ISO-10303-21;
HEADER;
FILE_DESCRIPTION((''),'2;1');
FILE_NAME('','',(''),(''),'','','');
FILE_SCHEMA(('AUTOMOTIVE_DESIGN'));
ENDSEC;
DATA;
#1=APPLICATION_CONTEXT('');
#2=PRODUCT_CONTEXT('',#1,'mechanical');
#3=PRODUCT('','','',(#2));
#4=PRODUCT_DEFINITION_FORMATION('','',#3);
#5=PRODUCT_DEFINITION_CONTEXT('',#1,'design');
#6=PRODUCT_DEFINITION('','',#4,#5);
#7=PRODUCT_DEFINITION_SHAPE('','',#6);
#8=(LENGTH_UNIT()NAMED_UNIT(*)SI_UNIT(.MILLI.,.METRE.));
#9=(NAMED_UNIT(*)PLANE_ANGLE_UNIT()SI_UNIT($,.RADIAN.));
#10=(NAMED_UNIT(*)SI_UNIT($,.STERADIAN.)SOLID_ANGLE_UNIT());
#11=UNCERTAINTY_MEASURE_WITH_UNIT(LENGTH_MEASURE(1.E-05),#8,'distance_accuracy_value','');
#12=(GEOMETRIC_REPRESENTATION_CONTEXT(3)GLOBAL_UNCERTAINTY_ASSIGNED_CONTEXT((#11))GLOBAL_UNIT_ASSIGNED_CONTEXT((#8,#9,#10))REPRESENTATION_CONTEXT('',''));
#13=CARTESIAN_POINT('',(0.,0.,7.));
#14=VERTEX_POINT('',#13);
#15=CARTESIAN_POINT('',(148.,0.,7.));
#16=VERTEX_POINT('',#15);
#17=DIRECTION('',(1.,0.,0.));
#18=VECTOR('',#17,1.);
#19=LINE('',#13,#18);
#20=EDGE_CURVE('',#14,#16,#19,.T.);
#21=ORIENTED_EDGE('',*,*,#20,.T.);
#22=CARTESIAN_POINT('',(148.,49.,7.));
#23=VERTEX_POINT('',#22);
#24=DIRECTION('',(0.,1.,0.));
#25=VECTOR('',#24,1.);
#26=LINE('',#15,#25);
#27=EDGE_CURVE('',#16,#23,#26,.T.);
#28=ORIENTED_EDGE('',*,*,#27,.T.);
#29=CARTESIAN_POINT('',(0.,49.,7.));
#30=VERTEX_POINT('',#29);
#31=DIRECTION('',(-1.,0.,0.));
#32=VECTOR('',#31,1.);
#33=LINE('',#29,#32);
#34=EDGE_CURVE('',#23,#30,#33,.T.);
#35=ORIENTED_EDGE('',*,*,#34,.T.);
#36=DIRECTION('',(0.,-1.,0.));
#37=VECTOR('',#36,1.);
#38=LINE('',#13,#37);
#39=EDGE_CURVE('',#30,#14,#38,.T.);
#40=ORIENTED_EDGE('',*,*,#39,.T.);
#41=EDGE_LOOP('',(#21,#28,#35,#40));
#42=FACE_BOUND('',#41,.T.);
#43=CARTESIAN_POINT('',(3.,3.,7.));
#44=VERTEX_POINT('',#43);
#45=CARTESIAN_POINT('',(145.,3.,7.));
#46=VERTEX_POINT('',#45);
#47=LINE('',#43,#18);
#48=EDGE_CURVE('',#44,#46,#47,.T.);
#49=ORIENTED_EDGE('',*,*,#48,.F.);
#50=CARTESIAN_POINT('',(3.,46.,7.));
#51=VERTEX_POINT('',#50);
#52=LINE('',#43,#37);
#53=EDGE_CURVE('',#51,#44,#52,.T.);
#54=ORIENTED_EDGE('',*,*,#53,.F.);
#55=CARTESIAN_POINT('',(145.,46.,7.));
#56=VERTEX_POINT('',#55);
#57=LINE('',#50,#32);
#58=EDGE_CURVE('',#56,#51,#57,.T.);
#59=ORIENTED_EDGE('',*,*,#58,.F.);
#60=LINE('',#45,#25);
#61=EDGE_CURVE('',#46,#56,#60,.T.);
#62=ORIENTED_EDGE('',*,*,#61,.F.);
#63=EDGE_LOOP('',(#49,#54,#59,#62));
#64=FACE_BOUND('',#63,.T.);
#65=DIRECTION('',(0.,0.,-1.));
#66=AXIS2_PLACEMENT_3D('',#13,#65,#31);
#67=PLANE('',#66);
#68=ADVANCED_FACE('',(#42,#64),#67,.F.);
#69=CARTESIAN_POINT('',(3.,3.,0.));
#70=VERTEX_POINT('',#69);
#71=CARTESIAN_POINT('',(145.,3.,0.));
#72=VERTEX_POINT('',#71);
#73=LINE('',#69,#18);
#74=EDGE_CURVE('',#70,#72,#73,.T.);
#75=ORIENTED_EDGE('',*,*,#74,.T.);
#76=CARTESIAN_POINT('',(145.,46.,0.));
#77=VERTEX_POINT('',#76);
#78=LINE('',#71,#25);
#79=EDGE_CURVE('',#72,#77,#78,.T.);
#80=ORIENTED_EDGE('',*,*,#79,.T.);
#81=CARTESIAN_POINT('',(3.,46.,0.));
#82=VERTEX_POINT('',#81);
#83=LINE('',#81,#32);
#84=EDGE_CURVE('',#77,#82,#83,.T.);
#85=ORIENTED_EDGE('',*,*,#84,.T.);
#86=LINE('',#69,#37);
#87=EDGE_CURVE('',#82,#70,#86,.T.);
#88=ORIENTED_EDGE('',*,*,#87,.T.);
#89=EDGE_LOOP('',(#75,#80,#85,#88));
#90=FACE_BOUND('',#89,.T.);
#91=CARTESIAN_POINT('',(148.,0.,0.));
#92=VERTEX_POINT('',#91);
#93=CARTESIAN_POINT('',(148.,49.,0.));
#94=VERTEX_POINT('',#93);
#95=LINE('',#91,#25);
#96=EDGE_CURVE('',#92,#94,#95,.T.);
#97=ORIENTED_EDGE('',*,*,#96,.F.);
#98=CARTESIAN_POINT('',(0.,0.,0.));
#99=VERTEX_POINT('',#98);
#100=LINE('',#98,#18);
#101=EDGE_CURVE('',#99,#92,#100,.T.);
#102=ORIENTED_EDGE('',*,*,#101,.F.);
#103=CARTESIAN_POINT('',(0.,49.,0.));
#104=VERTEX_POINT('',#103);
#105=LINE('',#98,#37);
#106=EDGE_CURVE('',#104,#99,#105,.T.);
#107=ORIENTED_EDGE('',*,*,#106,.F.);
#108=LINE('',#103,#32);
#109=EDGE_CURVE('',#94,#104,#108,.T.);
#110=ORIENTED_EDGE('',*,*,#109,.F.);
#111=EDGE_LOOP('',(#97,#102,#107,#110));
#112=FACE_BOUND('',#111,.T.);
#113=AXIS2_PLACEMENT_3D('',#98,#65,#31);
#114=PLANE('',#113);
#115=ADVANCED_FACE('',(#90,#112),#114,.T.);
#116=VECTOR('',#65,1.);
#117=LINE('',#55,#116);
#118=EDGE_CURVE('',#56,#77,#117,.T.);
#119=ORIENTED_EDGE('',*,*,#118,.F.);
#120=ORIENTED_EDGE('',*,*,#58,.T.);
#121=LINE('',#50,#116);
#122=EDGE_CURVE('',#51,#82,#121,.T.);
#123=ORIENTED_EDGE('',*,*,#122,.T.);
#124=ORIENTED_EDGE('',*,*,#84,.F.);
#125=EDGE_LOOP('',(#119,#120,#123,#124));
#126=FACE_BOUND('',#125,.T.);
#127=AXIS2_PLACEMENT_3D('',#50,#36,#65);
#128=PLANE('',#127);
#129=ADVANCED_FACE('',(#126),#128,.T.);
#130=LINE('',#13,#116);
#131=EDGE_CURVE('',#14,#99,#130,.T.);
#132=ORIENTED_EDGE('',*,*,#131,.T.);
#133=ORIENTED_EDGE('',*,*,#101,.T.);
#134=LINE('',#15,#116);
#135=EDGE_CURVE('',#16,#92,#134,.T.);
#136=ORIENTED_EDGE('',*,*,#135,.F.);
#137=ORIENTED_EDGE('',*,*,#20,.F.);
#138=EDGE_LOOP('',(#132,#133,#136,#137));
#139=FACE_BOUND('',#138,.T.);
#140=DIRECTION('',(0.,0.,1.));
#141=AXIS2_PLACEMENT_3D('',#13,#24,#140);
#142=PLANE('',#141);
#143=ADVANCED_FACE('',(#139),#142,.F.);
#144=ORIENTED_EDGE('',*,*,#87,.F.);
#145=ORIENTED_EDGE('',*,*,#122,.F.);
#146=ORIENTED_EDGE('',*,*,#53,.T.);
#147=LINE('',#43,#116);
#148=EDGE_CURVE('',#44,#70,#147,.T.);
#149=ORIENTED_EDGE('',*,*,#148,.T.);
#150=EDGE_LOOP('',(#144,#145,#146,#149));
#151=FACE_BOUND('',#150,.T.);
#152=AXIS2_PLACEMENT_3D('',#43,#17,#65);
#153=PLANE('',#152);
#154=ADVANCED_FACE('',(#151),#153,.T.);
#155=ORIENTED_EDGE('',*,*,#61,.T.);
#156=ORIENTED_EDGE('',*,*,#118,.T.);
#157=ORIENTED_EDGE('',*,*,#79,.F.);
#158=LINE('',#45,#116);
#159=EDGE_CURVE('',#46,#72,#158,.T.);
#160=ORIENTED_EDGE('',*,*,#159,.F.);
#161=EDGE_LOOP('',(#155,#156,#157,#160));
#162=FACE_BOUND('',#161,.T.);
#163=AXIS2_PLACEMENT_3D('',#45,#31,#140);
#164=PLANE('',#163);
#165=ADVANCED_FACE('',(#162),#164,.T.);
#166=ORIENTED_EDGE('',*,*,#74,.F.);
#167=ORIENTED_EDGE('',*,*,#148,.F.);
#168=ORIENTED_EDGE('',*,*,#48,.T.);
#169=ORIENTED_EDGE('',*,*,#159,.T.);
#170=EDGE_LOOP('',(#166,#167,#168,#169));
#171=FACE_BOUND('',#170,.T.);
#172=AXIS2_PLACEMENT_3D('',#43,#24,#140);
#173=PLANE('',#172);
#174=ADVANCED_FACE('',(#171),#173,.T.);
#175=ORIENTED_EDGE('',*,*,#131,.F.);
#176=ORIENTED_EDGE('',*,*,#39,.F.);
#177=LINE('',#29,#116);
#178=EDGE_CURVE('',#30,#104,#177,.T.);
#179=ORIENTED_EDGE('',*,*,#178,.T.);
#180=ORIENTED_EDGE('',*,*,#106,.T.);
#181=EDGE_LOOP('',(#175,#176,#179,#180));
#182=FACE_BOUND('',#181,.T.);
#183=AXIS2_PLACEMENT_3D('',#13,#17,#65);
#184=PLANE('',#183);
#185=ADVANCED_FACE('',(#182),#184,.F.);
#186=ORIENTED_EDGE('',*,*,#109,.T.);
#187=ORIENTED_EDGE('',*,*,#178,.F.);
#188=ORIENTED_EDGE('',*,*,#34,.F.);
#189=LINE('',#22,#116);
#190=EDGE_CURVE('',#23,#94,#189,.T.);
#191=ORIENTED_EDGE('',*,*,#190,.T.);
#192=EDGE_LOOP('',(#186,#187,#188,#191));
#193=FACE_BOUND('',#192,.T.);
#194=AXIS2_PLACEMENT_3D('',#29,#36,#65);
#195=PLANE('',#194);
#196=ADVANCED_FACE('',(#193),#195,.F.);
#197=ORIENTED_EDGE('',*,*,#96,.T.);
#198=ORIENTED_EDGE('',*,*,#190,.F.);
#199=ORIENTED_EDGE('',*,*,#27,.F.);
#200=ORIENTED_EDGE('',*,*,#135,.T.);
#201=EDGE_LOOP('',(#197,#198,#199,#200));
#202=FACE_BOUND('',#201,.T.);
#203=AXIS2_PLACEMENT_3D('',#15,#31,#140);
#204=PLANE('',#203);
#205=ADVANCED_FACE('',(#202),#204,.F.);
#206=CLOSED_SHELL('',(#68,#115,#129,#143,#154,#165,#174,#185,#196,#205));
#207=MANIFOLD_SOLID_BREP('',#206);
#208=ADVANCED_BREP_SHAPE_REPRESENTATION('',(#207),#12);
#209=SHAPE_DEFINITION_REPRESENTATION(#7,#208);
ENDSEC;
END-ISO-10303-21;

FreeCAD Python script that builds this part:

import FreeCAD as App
import Part
import Sketcher
from FreeCAD import Vector


def add_polygon(sketch, points):
    """Adds a closed chain of lines whose ends are joined by coincident constraints."""
    first, n = sketch.GeometryCount, len(points)
    for a, b in zip(points, points[1:] + points[:1]):
        sketch.addGeometry(Part.LineSegment(App.Vector(*a, 0), App.Vector(*b, 0)), False)
    for i in range(n):
        sketch.addConstraint(Sketcher.Constraint("Coincident", first + i, 2, first + (i + 1) % n, 1))

doc = App.newDocument("Part")
body = doc.addObject("PartDesign::Body", "Body")

sketch1 = body.newObject("Sketcher::SketchObject", "Sketch")
sketch1.AttachmentSupport = (doc.getObject("XY_Plane"), [""])
sketch1.MapMode = "FlatFace"
add_polygon(sketch1, [(0, 49), (0, 0), (148, 0), (148, 49)])
add_polygon(sketch1, [(145, 3), (3, 3), (3, 46), (145, 46)])
sketch1.addConstraint(Sketcher.Constraint("Vertical", 0))
sketch1.addConstraint(Sketcher.Constraint("Horizontal", 1))
sketch1.addConstraint(Sketcher.Constraint("Vertical", 2))
sketch1.addConstraint(Sketcher.Constraint("Horizontal", 3))
sketch1.addConstraint(Sketcher.Constraint("Horizontal", 4))
sketch1.addConstraint(Sketcher.Constraint("Vertical", 5))
sketch1.addConstraint(Sketcher.Constraint("Horizontal", 6))
sketch1.addConstraint(Sketcher.Constraint("Vertical", 7))
sketch1.addConstraint(Sketcher.Constraint("Coincident", 0, 2, -1, 1))
sketch1.addConstraint(Sketcher.Constraint("DistanceX", 1, 1, 1, 2, 148.0))
sketch1.addConstraint(Sketcher.Constraint("DistanceX", 4, 2, 4, 1, 142.0))
sketch1.addConstraint(Sketcher.Constraint("DistanceY", 0, 2, 0, 1, 49.0))
sketch1.addConstraint(Sketcher.Constraint("DistanceY", 5, 1, 5, 2, 43.0))
sketch1.addConstraint(Sketcher.Constraint("DistanceX", -1, 1, 4, 2, 3.0))
sketch1.addConstraint(Sketcher.Constraint("DistanceY", -1, 1, 4, 2, 3.0))
pad1 = body.newObject("PartDesign::Pad", "Pad")
pad1.Profile = sketch1
pad1.Length = 7

doc.recompute()
